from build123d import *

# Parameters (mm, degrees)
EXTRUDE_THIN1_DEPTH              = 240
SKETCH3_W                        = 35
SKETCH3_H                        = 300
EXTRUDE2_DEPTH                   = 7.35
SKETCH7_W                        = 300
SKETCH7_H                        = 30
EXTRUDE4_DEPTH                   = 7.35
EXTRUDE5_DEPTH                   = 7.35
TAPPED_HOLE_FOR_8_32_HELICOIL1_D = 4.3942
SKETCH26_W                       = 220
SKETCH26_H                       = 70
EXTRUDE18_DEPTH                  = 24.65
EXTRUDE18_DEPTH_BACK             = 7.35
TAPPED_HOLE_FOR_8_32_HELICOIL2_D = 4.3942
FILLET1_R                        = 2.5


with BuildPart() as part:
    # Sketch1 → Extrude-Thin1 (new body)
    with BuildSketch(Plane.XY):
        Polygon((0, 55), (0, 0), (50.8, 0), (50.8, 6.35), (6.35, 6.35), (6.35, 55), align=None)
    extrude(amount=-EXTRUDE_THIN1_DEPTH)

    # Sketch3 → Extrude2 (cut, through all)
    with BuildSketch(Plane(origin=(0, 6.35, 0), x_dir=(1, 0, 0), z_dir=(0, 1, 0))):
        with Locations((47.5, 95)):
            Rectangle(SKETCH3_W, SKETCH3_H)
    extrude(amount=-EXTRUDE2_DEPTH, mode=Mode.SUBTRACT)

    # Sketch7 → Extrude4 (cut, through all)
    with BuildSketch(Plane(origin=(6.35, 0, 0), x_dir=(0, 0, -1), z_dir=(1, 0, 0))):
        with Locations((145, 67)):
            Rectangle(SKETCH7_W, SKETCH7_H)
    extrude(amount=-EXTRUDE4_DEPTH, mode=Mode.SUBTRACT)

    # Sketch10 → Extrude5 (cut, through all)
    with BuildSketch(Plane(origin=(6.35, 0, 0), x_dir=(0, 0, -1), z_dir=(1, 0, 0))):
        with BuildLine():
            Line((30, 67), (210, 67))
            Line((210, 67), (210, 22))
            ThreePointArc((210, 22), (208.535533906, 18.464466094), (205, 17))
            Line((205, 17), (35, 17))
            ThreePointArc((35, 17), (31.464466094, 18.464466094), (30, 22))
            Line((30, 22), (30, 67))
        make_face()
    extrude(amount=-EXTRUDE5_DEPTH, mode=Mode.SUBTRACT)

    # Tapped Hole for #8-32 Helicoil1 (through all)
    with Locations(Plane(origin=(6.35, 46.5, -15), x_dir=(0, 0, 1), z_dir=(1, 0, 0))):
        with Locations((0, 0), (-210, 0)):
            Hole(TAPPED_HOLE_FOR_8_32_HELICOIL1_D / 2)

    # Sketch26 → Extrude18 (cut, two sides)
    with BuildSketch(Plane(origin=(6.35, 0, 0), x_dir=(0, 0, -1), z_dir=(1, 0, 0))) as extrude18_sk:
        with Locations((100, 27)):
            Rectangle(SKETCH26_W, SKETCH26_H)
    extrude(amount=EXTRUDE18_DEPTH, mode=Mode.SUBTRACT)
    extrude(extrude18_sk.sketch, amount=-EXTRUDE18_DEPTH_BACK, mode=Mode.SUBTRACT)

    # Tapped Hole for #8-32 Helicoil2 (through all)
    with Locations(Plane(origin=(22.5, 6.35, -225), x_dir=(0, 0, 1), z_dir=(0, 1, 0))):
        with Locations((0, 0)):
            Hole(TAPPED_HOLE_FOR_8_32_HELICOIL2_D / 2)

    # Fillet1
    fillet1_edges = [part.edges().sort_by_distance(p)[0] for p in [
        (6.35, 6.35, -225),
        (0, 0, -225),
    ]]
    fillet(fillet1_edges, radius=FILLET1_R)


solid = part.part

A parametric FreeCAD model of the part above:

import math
import FreeCAD as App
import Part
import Sketcher
from FreeCAD import Vector
Q = App.Units.Quantity


def edges_at(feature, points):
    """Names of the edges that pass closest to the given points."""
    edges = feature.Shape.Edges
    near = lambda p: min(range(len(edges)), key=lambda i: edges[i].distToShape(Part.Vertex(*p))[0])
    return sorted({f"Edge{near(p) + 1}" for p in points})


def add_polygon(sketch, points):
    """Adds a closed chain of lines whose ends are joined by coincident constraints."""
    first, n = sketch.GeometryCount, len(points)
    for a, b in zip(points, points[1:] + points[:1]):
        sketch.addGeometry(Part.LineSegment(App.Vector(*a, 0), App.Vector(*b, 0)), False)
    for i in range(n):
        sketch.addConstraint(Sketcher.Constraint("Coincident", first + i, 2, first + (i + 1) % n, 1))

doc = App.newDocument("Part")
params = doc.addObject("Spreadsheet::Sheet", "Params")
for row, (alias, value) in enumerate([
    ("sketch1_height", "55 mm"),
    ("sketch1_width", "50.8 mm"),
    ("sketch1_width2", "44.45 mm"),
    ("pad1_length", "240 mm"),
    ("sketch2_width", "35 mm"),
    ("sketch2_height", "300 mm"),
    ("sketch3_width", "30 mm"),
    ("sketch3_height", "300 mm"),
    ("sketch4_radius", "5 mm"),
    ("sketch4_width", "45 mm"),
    ("sketch4_height", "180 mm"),
    ("hole_diameter", "4.3942 mm"),
    ("sketch6_width", "70 mm"),
    ("sketch6_height", "220 mm"),
    ("hole2_diameter", "4.3942 mm"),
    ("fillet_radius", "2.5 mm"),
], start=1):
    params.set(f"A{row}", alias)
    params.set(f"B{row}", "=" + value)
    params.setAlias(f"B{row}", alias)

body = doc.addObject("PartDesign::Body", "Body")

# Sketch on XY plane
sketch1 = body.newObject("Sketcher::SketchObject", "Sketch")
sketch1.AttachmentSupport = (doc.getObject("XY_Plane"), [""])
sketch1.MapMode = "FlatFace"
add_polygon(sketch1, [(0, 55), (0, 0), (50.8, 0), (50.8, 6.35), (6.35, 6.35), (6.35, 55)])  # lines 0-5
sketch1.addConstraint(Sketcher.Constraint("Vertical", 0))
sketch1.addConstraint(Sketcher.Constraint("Horizontal", 1))
sketch1.addConstraint(Sketcher.Constraint("Vertical", 2))
sketch1.addConstraint(Sketcher.Constraint("Horizontal", 3))
sketch1.addConstraint(Sketcher.Constraint("Vertical", 4))
sketch1.addConstraint(Sketcher.Constraint("Horizontal", 5))
sketch1.addConstraint(Sketcher.Constraint("Coincident", 0, 2, -1, 1))
sketch1.addConstraint(Sketcher.Constraint("Equal", 5, 2))
sketch1.addConstraint(Sketcher.Constraint("DistanceY", 0, 2, 0, 1, Q("55 mm")))
sketch1.addConstraint(Sketcher.Constraint("DistanceX", 1, 1, 1, 2, Q("50.8 mm")))
sketch1.addConstraint(Sketcher.Constraint("DistanceX", 3, 2, 3, 1, Q("44.45 mm")))
sketch1.setExpression("Constraints[14]", "Params.sketch1_height")
sketch1.setExpression("Constraints[15]", "Params.sketch1_width")
sketch1.setExpression("Constraints[16]", "Params.sketch1_width2")
pad1 = body.newObject("PartDesign::Pad", "Pad")
pad1.Profile = sketch1
pad1.setExpression("Length", "Params.pad1_length")
pad1.Reversed = True

# Sketch on XZ plane
sketch2 = body.newObject("Sketcher::SketchObject", "Sketch001")
sketch2.AttachmentSupport = (doc.getObject("XZ_Plane"), [""])
sketch2.MapMode = "FlatFace"
sketch2.AttachmentOffset = App.Placement(Vector(0, 0, -6.35), App.Rotation())
add_polygon(sketch2, [(30, -245), (30, 55), (65, 55), (65, -245)])  # lines 0-3
sketch2.addConstraint(Sketcher.Constraint("Vertical", 0))
sketch2.addConstraint(Sketcher.Constraint("Horizontal", 1))
sketch2.addConstraint(Sketcher.Constraint("Vertical", 2))
sketch2.addConstraint(Sketcher.Constraint("Horizontal", 3))
sketch2.addConstraint(Sketcher.Constraint("DistanceX", 1, 1, 1, 2, Q("35 mm")))
sketch2.addConstraint(Sketcher.Constraint("DistanceY", 0, 1, 0, 2, Q("300 mm")))
sketch2.addConstraint(Sketcher.Constraint("DistanceX", -1, 1, 0, 2, Q("30 mm")))
sketch2.addConstraint(Sketcher.Constraint("DistanceY", -1, 1, 0, 2, Q("55 mm")))
sketch2.setExpression("Constraints[8]", "Params.sketch2_width")
sketch2.setExpression("Constraints[9]", "Params.sketch2_height")
pocket1 = body.newObject("PartDesign::Pocket", "Pocket")
pocket1.Profile = sketch2
pocket1.Type = "ThroughAll"
pocket1.Reversed = True

# Sketch on YZ plane
sketch3 = body.newObject("Sketcher::SketchObject", "Sketch002")
sketch3.AttachmentSupport = (doc.getObject("YZ_Plane"), [""])
sketch3.MapMode = "FlatFace"
sketch3.AttachmentOffset = App.Placement(Vector(0, 0, 6.35), App.Rotation())
add_polygon(sketch3, [(82, 5), (52, 5), (52, -295), (82, -295)])  # lines 0-3
sketch3.addConstraint(Sketcher.Constraint("Horizontal", 0))
sketch3.addConstraint(Sketcher.Constraint("Vertical", 1))
sketch3.addConstraint(Sketcher.Constraint("Horizontal", 2))
sketch3.addConstraint(Sketcher.Constraint("Vertical", 3))
sketch3.addConstraint(Sketcher.Constraint("DistanceX", 0, 2, 0, 1, Q("30 mm")))
sketch3.addConstraint(Sketcher.Constraint("DistanceY", 1, 2, 1, 1, Q("300 mm")))
sketch3.addConstraint(Sketcher.Constraint("DistanceX", -1, 1, 0, 2, Q("52 mm")))
sketch3.addConstraint(Sketcher.Constraint("DistanceY", -1, 1, 0, 2, Q("5 mm")))
sketch3.setExpression("Constraints[8]", "Params.sketch3_width")
sketch3.setExpression("Constraints[9]", "Params.sketch3_height")
pocket2 = body.newObject("PartDesign::Pocket", "Pocket001")
pocket2.Profile = sketch3
pocket2.Type = "ThroughAll"

# Sketch on YZ plane
sketch4 = body.newObject("Sketcher::SketchObject", "Sketch003")
sketch4.AttachmentSupport = (doc.getObject("YZ_Plane"), [""])
sketch4.MapMode = "FlatFace"
sketch4.AttachmentOffset = App.Placement(Vector(0, 0, 6.35), App.Rotation())
sketch4.addGeometry(Part.LineSegment(Vector(67, -210, 0), Vector(67, -30, 0)), False)
sketch4.addGeometry(Part.LineSegment(Vector(67, -30, 0), Vector(22, -30, 0)), False)
sketch4.addGeometry(Part.ArcOfCircle(Part.Circle(Vector(22, -35, 0), Vector(0, 0, 1), 5), math.radians(90), math.radians(180)), False)
sketch4.addGeometry(Part.LineSegment(Vector(17, -35, 0), Vector(17, -205, 0)), False)
sketch4.addGeometry(Part.ArcOfCircle(Part.Circle(Vector(22, -205, 0), Vector(0, 0, 1), 5), math.radians(180), math.radians(270)), False)
sketch4.addGeometry(Part.LineSegment(Vector(22, -210, 0), Vector(67, -210, 0)), False)
sketch4.addConstraint(Sketcher.Constraint("Coincident", 0, 2, 1, 1))
sketch4.addConstraint(Sketcher.Constraint("Tangent", 1, 2, 2, 1))
sketch4.addConstraint(Sketcher.Constraint("Tangent", 2, 2, 3, 1))
sketch4.addConstraint(Sketcher.Constraint("Tangent", 3, 2, 4, 1))
sketch4.addConstraint(Sketcher.Constraint("Tangent", 4, 2, 5, 1))
sketch4.addConstraint(Sketcher.Constraint("Coincident", 5, 2, 0, 1))
sketch4.addConstraint(Sketcher.Constraint("Vertical", 0))
sketch4.addConstraint(Sketcher.Constraint("Horizontal", 1))
sketch4.addConstraint(Sketcher.Constraint("Vertical", 3))
sketch4.addConstraint(Sketcher.Constraint("Horizontal", 5))
sketch4.addConstraint(Sketcher.Constraint("Equal", 2, 4))
sketch4.addConstraint(Sketcher.Constraint("Radius", 2, Q("5 mm")))
sketch4.addConstraint(Sketcher.Constraint("DistanceX", 1, 2, 1, 1, Q("45 mm")))
sketch4.addConstraint(Sketcher.Constraint("DistanceY", 0, 1, 0, 2, Q("180 mm")))
sketch4.addConstraint(Sketcher.Constraint("DistanceX", -1, 1, 2, 3, Q("22 mm")))
sketch4.addConstraint(Sketcher.Constraint("DistanceY", 2, 3, -1, 1, Q("35 mm")))
sketch4.setExpression("Constraints[11]", "Params.sketch4_radius")
sketch4.setExpression("Constraints[12]", "Params.sketch4_width")
sketch4.setExpression("Constraints[13]", "Params.sketch4_height")
pocket3 = body.newObject("PartDesign::Pocket", "Pocket002")
pocket3.Profile = sketch4
pocket3.Type = "ThroughAll"

# Sketch on YZ plane
sketch5 = body.newObject("Sketcher::SketchObject", "Sketch004")
sketch5.AttachmentSupport = (doc.getObject("YZ_Plane"), [""])
sketch5.MapMode = "FlatFace"
sketch5.AttachmentOffset = App.Placement(Vector(0, 0, 6.35), App.Rotation())
sketch5.addGeometry(Part.Circle(Vector(46.5, -15, 0), Vector(0, 0, 1), 2.1971), False)
sketch5.addGeometry(Part.Circle(Vector(46.5, -225, 0), Vector(0, 0, 1), 2.1971), False)
sketch5.addConstraint(Sketcher.Constraint("Equal", 0, 1))
sketch5.addConstraint(Sketcher.Constraint("Vertical", 0, 3, 1, 3))
sketch5.addConstraint(Sketcher.Constraint("DistanceY", 0, 3, -1, 1, Q("15 mm")))
sketch5.addConstraint(Sketcher.Constraint("DistanceY", 1, 3, -1, 1, Q("225 mm")))
sketch5.addConstraint(Sketcher.Constraint("Diameter", 0, Q("4.3942 mm")))
sketch5.addConstraint(Sketcher.Constraint("DistanceX", -1, 1, 0, 3, Q("46.5 mm")))
doc.recompute()
hole = body.newObject("PartDesign::Hole", "Hole")
hole.Profile = sketch5
hole.ThreadType = "None"
hole.setExpression("Diameter", "Params.hole_diameter")
hole.DepthType = "ThroughAll"

# Sketch on YZ plane
sketch6 = body.newObject("Sketcher::SketchObject", "Sketch005")
sketch6.AttachmentSupport = (doc.getObject("YZ_Plane"), [""])
sketch6.MapMode = "FlatFace"
sketch6.AttachmentOffset = App.Placement(Vector(0, 0, 6.35), App.Rotation())
add_polygon(sketch6, [(62, 10), (-8, 10), (-8, -210), (62, -210)])  # lines 0-3
sketch6.addConstraint(Sketcher.Constraint("Horizontal", 0))
sketch6.addConstraint(Sketcher.Constraint("Vertical", 1))
sketch6.addConstraint(Sketcher.Constraint("Horizontal", 2))
sketch6.addConstraint(Sketcher.Constraint("Vertical", 3))
sketch6.addConstraint(Sketcher.Constraint("DistanceX", 0, 2, 0, 1, Q("70 mm")))
sketch6.addConstraint(Sketcher.Constraint("DistanceY", 1, 2, 1, 1, Q("220 mm")))
sketch6.addConstraint(Sketcher.Constraint("DistanceX", 0, 2, -1, 1, Q("8 mm")))
sketch6.addConstraint(Sketcher.Constraint("DistanceY", -1, 1, 0, 2, Q("10 mm")))
sketch6.setExpression("Constraints[8]", "Params.sketch6_width")
sketch6.setExpression("Constraints[9]", "Params.sketch6_height")
pocket4 = body.newObject("PartDesign::Pocket", "Pocket003")
pocket4.Profile = sketch6
pocket4.Type = "ThroughAll"
pocket4.Midplane = True

# Sketch on XZ plane
sketch7 = body.newObject("Sketcher::SketchObject", "Sketch006")
sketch7.AttachmentSupport = (doc.getObject("XZ_Plane"), [""])
sketch7.MapMode = "FlatFace"
sketch7.AttachmentOffset = App.Placement(Vector(0, 0, -6.35), App.Rotation())
sketch7.addGeometry(Part.Circle(Vector(22.5, -225, 0), Vector(0, 0, 1), 2.1971), False)
sketch7.addConstraint(Sketcher.Constraint("DistanceY", 0, 3, -1, 1, Q("225 mm")))
sketch7.addConstraint(Sketcher.Constraint("Diameter", 0, Q("4.3942 mm")))
sketch7.addConstraint(Sketcher.Constraint("DistanceX", -1, 1, 0, 3, Q("22.5 mm")))
doc.recompute()
hole2 = body.newObject("PartDesign::Hole", "Hole001")
hole2.Profile = sketch7
hole2.ThreadType = "None"
hole2.setExpression("Diameter", "Params.hole2_diameter")
hole2.DepthType = "ThroughAll"
hole2.Reversed = True
doc.recompute()

fillet = body.newObject("PartDesign::Fillet", "Fillet")
fillet.Base = (hole2, edges_at(hole2, [(6.35, 6.35, -225), (0, 0, -225)]))
fillet.setExpression("Radius", "Params.fillet_radius")

doc.recompute()
